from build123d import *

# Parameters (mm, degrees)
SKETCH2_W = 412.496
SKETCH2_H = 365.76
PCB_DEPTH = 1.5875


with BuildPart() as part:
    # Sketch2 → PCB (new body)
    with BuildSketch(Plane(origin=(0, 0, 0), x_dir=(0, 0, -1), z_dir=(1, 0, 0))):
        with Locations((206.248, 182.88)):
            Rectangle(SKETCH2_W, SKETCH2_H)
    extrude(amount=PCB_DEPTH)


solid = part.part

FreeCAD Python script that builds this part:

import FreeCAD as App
import Part
import Sketcher

V = App.Vector
Q = App.Units.Quantity

doc = App.newDocument("Part")
body = doc.addObject("PartDesign::Body", "Body")

# Sketch on YZ plane
sketch1 = doc.addObject("Sketcher::SketchObject", "Sketch")
body.addObject(sketch1)
sketch1.AttachmentSupport = (doc.YZ_Plane, [""])
sketch1.MapMode = "FlatFace"
sketch1.addGeometry([
    Part.LineSegment(V(366, 0, 0), V(0, 0, 0)),
    Part.LineSegment(V(0, 0, 0), V(0, -412, 0)),
    Part.LineSegment(V(0, -412, 0), V(366, -412, 0)),
    Part.LineSegment(V(366, -412, 0), V(366, 0, 0)),
], False)
sketch1.addConstraint([
    Sketcher.Constraint("Coincident", 0, 2, 1, 1),
    Sketcher.Constraint("Coincident", 1, 2, 2, 1),
    Sketcher.Constraint("Coincident", 2, 2, 3, 1),
    Sketcher.Constraint("Coincident", 3, 2, 0, 1),
    Sketcher.Constraint("Horizontal", 0),
    Sketcher.Constraint("Vertical", 1),
    Sketcher.Constraint("Horizontal", 2),
    Sketcher.Constraint("Vertical", 3),
    Sketcher.Constraint("Coincident", 0, 2, -1, 1),
    Sketcher.Constraint("DistanceX", 0, 2, 0, 1, Q("14.4 in")),
    Sketcher.Constraint("DistanceY", 1, 2, 1, 1, Q("16.24 in")),
])
pad1 = doc.addObject("PartDesign::Pad", "Pad")
body.addObject(pad1)
pad1.Profile = sketch1
pad1.Length = Q("0.0625 in")

doc.recompute()
